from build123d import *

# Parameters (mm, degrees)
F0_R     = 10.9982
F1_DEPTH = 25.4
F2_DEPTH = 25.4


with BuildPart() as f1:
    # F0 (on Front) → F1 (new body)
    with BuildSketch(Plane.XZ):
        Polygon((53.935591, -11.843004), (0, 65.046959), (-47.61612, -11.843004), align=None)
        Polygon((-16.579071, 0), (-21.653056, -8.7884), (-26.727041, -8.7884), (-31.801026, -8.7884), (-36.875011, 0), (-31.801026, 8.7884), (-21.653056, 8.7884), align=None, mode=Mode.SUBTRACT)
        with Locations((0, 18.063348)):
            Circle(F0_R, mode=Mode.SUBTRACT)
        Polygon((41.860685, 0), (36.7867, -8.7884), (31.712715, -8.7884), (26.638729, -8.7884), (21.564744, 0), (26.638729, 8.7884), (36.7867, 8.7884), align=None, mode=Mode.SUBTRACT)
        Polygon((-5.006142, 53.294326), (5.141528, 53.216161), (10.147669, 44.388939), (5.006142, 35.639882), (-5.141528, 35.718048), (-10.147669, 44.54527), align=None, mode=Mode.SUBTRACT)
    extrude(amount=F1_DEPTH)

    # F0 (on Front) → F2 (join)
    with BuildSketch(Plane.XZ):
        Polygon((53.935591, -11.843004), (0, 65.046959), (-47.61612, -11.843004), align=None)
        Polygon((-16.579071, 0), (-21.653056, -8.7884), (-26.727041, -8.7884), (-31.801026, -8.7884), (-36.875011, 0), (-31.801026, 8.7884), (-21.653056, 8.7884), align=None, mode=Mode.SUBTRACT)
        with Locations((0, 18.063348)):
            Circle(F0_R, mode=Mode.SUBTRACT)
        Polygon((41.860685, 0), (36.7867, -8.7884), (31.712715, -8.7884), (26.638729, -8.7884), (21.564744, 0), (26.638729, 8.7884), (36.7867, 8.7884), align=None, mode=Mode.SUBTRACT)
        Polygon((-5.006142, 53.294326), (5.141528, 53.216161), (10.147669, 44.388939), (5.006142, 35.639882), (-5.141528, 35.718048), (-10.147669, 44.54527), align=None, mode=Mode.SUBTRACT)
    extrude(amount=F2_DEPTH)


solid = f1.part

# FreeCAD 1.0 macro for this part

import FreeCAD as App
import Part
import Sketcher
Q = App.Units.Quantity


def add_polygon(sketch, points):
    """Adds a closed chain of lines whose ends are joined by coincident constraints."""
    first, n = sketch.GeometryCount, len(points)
    for a, b in zip(points, points[1:] + points[:1]):
        sketch.addGeometry(Part.LineSegment(App.Vector(*a, 0), App.Vector(*b, 0)), False)
    for i in range(n):
        sketch.addConstraint(Sketcher.Constraint("Coincident", first + i, 2, first + (i + 1) % n, 1))

doc = App.newDocument("Part")
body = doc.addObject("PartDesign::Body", "Body")

# Sketch on XZ plane
sketch1 = body.newObject("Sketcher::SketchObject", "Sketch")
sketch1.AttachmentSupport = (doc.getObject("XZ_Plane"), [""])
sketch1.MapMode = "FlatFace"
add_polygon(sketch1, [(53.935591, -11.843004), (0, 65.046959), (-47.61612, -11.843004)])  # lines 0-2
add_polygon(sketch1, [(-21.653056, 8.7884), (-16.579071, 0), (-21.653056, -8.7884), (-31.801026, -8.7884), (-36.875011, 0), (-31.801026, 8.7884)])  # lines 3-8
sketch1.addGeometry(Part.Circle(App.Vector(0, 18.063348, 0), App.Vector(0, 0, 1), 10.9982), False)  # 9
add_polygon(sketch1, [(36.7867, 8.7884), (41.860685, 0), (36.7867, -8.7884), (26.638729, -8.7884), (21.564744, 0), (26.638729, 8.7884)])  # lines 10-15
add_polygon(sketch1, [(-10.147669, 44.54527), (-5.006142, 53.294326), (5.141528, 53.216161), (10.147669, 44.388939), (5.006142, 35.639882), (-5.141528, 35.718048)])  # lines 16-21
sketch1.addConstraint([
    Sketcher.Constraint("Horizontal", 2),
    Sketcher.Constraint("Horizontal", 5),
    Sketcher.Constraint("Horizontal", 8),
    Sketcher.Constraint("Horizontal", 12),
    Sketcher.Constraint("Horizontal", 15),
    Sketcher.Constraint("PointOnObject", 9, 3, -2),
    Sketcher.Constraint("PointOnObject", 0, 2, -2),
    Sketcher.Constraint("PointOnObject", 3, 2, -1),
    Sketcher.Constraint("PointOnObject", 6, 2, -1),
    Sketcher.Constraint("PointOnObject", 10, 2, -1),
    Sketcher.Constraint("PointOnObject", 13, 2, -1),
    Sketcher.Constraint("Diameter", 9, Q("0.866 in")),
    Sketcher.Constraint("DistanceY", 4, 2, -1, 1, Q("0.346 in")),
    Sketcher.Constraint("DistanceY", -1, 1, 7, 2, Q("0.346 in")),
    Sketcher.Constraint("DistanceY", 11, 2, -1, 1, Q("0.346 in")),
    Sketcher.Constraint("DistanceY", -1, 1, 14, 2, Q("0.346 in")),
    Sketcher.Constraint("DistanceX", 2, 1, 2, 2, Q("101.551711 mm")),
    Sketcher.Constraint("DistanceX", 5, 2, 5, 1, Q("10.14797 mm")),
    Sketcher.Constraint("DistanceX", 8, 1, 8, 2, Q("10.14797 mm")),
    Sketcher.Constraint("DistanceX", 12, 2, 12, 1, Q("10.147971 mm")),
    Sketcher.Constraint("DistanceX", 15, 1, 15, 2, Q("10.147971 mm")),
    Sketcher.Constraint("DistanceX", -1, 1, 11, 2, Q("36.7867 mm")),
    Sketcher.Constraint("DistanceX", -1, 1, 15, 2, Q("36.7867 mm")),
    Sketcher.Constraint("DistanceX", 3, 2, 12, 2, Q("43.2178 mm")),
    Sketcher.Constraint("DistanceY", 17, 2, 0, 2, Q("11.830798 mm")),
    Sketcher.Constraint("DistanceX", 17, 2, 14, 2, Q("21.497201 mm")),
    Sketcher.Constraint("DistanceY", 9, 3, 20, 2, Q("17.6547 mm")),
    Sketcher.Constraint("Distance", 1, Q("90.439821 mm")),
    Sketcher.Constraint("Distance", 3, Q("10.14797 mm")),
    Sketcher.Constraint("Distance", 4, Q("10.14797 mm")),
    Sketcher.Constraint("Distance", 6, Q("10.14797 mm")),
    Sketcher.Constraint("Distance", 10, Q("10.14797 mm")),
    Sketcher.Constraint("Distance", 13, Q("10.14797 mm")),
    Sketcher.Constraint("Distance", 16, Q("10.147969 mm")),
    Sketcher.Constraint("Distance", 17, Q("10.147971 mm")),
    Sketcher.Constraint("Distance", 18, Q("10.14797 mm")),
    Sketcher.Constraint("Distance", 19, Q("10.14797 mm")),
    Sketcher.Constraint("Distance", 20, Q("10.147971 mm")),
    Sketcher.Constraint("Distance", 21, Q("10.14797 mm")),
    Sketcher.Constraint("DistanceY", -1, 1, 9, 3, Q("18.063348 mm")),
    Sketcher.Constraint("DistanceY", -1, 1, 0, 2, Q("65.046959 mm")),
    Sketcher.Constraint("DistanceX", 1, 2, -1, 1, Q("47.61612 mm")),
    Sketcher.Constraint("DistanceX", 16, 2, -1, 1, Q("5.006142 mm")),
    Sketcher.Constraint("DistanceX", -1, 1, 18, 2, Q("10.147669 mm")),
    Sketcher.Constraint("DistanceX", -1, 1, 19, 2, Q("5.006142 mm")),
])
pad1 = body.newObject("PartDesign::Pad", "Pad")
pad1.Profile = sketch1
pad1.Length = Q("1 in")

# Sketch on XZ plane
sketch2 = body.newObject("Sketcher::SketchObject", "Sketch001")
sketch2.AttachmentSupport = (doc.getObject("XZ_Plane"), [""])
sketch2.MapMode = "FlatFace"
add_polygon(sketch2, [(53.935591, -11.843004), (0, 65.046959), (-47.61612, -11.843004)])  # lines 0-2
add_polygon(sketch2, [(-21.653056, 8.7884), (-16.579071, 0), (-21.653056, -8.7884), (-31.801026, -8.7884), (-36.875011, 0), (-31.801026, 8.7884)])  # lines 3-8
sketch2.addGeometry(Part.Circle(App.Vector(0, 18.063348, 0), App.Vector(0, 0, 1), 10.9982), False)  # 9
add_polygon(sketch2, [(36.7867, 8.7884), (41.860685, 0), (36.7867, -8.7884), (26.638729, -8.7884), (21.564744, 0), (26.638729, 8.7884)])  # lines 10-15
add_polygon(sketch2, [(-10.147669, 44.54527), (-5.006142, 53.294326), (5.141528, 53.216161), (10.147669, 44.388939), (5.006142, 35.639882), (-5.141528, 35.718048)])  # lines 16-21
sketch2.addConstraint([
    Sketcher.Constraint("Horizontal", 2),
    Sketcher.Constraint("Horizontal", 5),
    Sketcher.Constraint("Horizontal", 8),
    Sketcher.Constraint("Horizontal", 12),
    Sketcher.Constraint("Horizontal", 15),
    Sketcher.Constraint("PointOnObject", 9, 3, -2),
    Sketcher.Constraint("PointOnObject", 0, 2, -2),
    Sketcher.Constraint("PointOnObject", 3, 2, -1),
    Sketcher.Constraint("PointOnObject", 6, 2, -1),
    Sketcher.Constraint("PointOnObject", 10, 2, -1),
    Sketcher.Constraint("PointOnObject", 13, 2, -1),
    Sketcher.Constraint("Diameter", 9, Q("0.866 in")),
    Sketcher.Constraint("DistanceY", 4, 2, -1, 1, Q("0.346 in")),
    Sketcher.Constraint("DistanceY", -1, 1, 7, 2, Q("0.346 in")),
    Sketcher.Constraint("DistanceY", 11, 2, -1, 1, Q("0.346 in")),
    Sketcher.Constraint("DistanceY", -1, 1, 14, 2, Q("0.346 in")),
    Sketcher.Constraint("DistanceX", 2, 1, 2, 2, Q("101.551711 mm")),
    Sketcher.Constraint("DistanceX", 5, 2, 5, 1, Q("10.14797 mm")),
    Sketcher.Constraint("DistanceX", 8, 1, 8, 2, Q("10.14797 mm")),
    Sketcher.Constraint("DistanceX", 12, 2, 12, 1, Q("10.147971 mm")),
    Sketcher.Constraint("DistanceX", 15, 1, 15, 2, Q("10.147971 mm")),
    Sketcher.Constraint("DistanceX", -1, 1, 11, 2, Q("36.7867 mm")),
    Sketcher.Constraint("DistanceX", -1, 1, 15, 2, Q("36.7867 mm")),
    Sketcher.Constraint("DistanceX", 3, 2, 12, 2, Q("43.2178 mm")),
    Sketcher.Constraint("DistanceY", 17, 2, 0, 2, Q("11.830798 mm")),
    Sketcher.Constraint("DistanceX", 17, 2, 14, 2, Q("21.497201 mm")),
    Sketcher.Constraint("DistanceY", 9, 3, 20, 2, Q("17.6547 mm")),
    Sketcher.Constraint("Distance", 1, Q("90.439821 mm")),
    Sketcher.Constraint("Distance", 3, Q("10.14797 mm")),
    Sketcher.Constraint("Distance", 4, Q("10.14797 mm")),
    Sketcher.Constraint("Distance", 6, Q("10.14797 mm")),
    Sketcher.Constraint("Distance", 10, Q("10.14797 mm")),
    Sketcher.Constraint("Distance", 13, Q("10.14797 mm")),
    Sketcher.Constraint("Distance", 16, Q("10.147969 mm")),
    Sketcher.Constraint("Distance", 17, Q("10.147971 mm")),
    Sketcher.Constraint("Distance", 18, Q("10.14797 mm")),
    Sketcher.Constraint("Distance", 19, Q("10.14797 mm")),
    Sketcher.Constraint("Distance", 20, Q("10.147971 mm")),
    Sketcher.Constraint("Distance", 21, Q("10.14797 mm")),
    Sketcher.Constraint("DistanceY", -1, 1, 9, 3, Q("18.063348 mm")),
    Sketcher.Constraint("DistanceY", -1, 1, 0, 2, Q("65.046959 mm")),
    Sketcher.Constraint("DistanceX", 1, 2, -1, 1, Q("47.61612 mm")),
    Sketcher.Constraint("DistanceX", 16, 2, -1, 1, Q("5.006142 mm")),
    Sketcher.Constraint("DistanceX", -1, 1, 18, 2, Q("10.147669 mm")),
    Sketcher.Constraint("DistanceX", -1, 1, 19, 2, Q("5.006142 mm")),
])
pad2 = body.newObject("PartDesign::Pad", "Pad001")
pad2.Profile = sketch2
pad2.Length = Q("1 in")

doc.recompute()
